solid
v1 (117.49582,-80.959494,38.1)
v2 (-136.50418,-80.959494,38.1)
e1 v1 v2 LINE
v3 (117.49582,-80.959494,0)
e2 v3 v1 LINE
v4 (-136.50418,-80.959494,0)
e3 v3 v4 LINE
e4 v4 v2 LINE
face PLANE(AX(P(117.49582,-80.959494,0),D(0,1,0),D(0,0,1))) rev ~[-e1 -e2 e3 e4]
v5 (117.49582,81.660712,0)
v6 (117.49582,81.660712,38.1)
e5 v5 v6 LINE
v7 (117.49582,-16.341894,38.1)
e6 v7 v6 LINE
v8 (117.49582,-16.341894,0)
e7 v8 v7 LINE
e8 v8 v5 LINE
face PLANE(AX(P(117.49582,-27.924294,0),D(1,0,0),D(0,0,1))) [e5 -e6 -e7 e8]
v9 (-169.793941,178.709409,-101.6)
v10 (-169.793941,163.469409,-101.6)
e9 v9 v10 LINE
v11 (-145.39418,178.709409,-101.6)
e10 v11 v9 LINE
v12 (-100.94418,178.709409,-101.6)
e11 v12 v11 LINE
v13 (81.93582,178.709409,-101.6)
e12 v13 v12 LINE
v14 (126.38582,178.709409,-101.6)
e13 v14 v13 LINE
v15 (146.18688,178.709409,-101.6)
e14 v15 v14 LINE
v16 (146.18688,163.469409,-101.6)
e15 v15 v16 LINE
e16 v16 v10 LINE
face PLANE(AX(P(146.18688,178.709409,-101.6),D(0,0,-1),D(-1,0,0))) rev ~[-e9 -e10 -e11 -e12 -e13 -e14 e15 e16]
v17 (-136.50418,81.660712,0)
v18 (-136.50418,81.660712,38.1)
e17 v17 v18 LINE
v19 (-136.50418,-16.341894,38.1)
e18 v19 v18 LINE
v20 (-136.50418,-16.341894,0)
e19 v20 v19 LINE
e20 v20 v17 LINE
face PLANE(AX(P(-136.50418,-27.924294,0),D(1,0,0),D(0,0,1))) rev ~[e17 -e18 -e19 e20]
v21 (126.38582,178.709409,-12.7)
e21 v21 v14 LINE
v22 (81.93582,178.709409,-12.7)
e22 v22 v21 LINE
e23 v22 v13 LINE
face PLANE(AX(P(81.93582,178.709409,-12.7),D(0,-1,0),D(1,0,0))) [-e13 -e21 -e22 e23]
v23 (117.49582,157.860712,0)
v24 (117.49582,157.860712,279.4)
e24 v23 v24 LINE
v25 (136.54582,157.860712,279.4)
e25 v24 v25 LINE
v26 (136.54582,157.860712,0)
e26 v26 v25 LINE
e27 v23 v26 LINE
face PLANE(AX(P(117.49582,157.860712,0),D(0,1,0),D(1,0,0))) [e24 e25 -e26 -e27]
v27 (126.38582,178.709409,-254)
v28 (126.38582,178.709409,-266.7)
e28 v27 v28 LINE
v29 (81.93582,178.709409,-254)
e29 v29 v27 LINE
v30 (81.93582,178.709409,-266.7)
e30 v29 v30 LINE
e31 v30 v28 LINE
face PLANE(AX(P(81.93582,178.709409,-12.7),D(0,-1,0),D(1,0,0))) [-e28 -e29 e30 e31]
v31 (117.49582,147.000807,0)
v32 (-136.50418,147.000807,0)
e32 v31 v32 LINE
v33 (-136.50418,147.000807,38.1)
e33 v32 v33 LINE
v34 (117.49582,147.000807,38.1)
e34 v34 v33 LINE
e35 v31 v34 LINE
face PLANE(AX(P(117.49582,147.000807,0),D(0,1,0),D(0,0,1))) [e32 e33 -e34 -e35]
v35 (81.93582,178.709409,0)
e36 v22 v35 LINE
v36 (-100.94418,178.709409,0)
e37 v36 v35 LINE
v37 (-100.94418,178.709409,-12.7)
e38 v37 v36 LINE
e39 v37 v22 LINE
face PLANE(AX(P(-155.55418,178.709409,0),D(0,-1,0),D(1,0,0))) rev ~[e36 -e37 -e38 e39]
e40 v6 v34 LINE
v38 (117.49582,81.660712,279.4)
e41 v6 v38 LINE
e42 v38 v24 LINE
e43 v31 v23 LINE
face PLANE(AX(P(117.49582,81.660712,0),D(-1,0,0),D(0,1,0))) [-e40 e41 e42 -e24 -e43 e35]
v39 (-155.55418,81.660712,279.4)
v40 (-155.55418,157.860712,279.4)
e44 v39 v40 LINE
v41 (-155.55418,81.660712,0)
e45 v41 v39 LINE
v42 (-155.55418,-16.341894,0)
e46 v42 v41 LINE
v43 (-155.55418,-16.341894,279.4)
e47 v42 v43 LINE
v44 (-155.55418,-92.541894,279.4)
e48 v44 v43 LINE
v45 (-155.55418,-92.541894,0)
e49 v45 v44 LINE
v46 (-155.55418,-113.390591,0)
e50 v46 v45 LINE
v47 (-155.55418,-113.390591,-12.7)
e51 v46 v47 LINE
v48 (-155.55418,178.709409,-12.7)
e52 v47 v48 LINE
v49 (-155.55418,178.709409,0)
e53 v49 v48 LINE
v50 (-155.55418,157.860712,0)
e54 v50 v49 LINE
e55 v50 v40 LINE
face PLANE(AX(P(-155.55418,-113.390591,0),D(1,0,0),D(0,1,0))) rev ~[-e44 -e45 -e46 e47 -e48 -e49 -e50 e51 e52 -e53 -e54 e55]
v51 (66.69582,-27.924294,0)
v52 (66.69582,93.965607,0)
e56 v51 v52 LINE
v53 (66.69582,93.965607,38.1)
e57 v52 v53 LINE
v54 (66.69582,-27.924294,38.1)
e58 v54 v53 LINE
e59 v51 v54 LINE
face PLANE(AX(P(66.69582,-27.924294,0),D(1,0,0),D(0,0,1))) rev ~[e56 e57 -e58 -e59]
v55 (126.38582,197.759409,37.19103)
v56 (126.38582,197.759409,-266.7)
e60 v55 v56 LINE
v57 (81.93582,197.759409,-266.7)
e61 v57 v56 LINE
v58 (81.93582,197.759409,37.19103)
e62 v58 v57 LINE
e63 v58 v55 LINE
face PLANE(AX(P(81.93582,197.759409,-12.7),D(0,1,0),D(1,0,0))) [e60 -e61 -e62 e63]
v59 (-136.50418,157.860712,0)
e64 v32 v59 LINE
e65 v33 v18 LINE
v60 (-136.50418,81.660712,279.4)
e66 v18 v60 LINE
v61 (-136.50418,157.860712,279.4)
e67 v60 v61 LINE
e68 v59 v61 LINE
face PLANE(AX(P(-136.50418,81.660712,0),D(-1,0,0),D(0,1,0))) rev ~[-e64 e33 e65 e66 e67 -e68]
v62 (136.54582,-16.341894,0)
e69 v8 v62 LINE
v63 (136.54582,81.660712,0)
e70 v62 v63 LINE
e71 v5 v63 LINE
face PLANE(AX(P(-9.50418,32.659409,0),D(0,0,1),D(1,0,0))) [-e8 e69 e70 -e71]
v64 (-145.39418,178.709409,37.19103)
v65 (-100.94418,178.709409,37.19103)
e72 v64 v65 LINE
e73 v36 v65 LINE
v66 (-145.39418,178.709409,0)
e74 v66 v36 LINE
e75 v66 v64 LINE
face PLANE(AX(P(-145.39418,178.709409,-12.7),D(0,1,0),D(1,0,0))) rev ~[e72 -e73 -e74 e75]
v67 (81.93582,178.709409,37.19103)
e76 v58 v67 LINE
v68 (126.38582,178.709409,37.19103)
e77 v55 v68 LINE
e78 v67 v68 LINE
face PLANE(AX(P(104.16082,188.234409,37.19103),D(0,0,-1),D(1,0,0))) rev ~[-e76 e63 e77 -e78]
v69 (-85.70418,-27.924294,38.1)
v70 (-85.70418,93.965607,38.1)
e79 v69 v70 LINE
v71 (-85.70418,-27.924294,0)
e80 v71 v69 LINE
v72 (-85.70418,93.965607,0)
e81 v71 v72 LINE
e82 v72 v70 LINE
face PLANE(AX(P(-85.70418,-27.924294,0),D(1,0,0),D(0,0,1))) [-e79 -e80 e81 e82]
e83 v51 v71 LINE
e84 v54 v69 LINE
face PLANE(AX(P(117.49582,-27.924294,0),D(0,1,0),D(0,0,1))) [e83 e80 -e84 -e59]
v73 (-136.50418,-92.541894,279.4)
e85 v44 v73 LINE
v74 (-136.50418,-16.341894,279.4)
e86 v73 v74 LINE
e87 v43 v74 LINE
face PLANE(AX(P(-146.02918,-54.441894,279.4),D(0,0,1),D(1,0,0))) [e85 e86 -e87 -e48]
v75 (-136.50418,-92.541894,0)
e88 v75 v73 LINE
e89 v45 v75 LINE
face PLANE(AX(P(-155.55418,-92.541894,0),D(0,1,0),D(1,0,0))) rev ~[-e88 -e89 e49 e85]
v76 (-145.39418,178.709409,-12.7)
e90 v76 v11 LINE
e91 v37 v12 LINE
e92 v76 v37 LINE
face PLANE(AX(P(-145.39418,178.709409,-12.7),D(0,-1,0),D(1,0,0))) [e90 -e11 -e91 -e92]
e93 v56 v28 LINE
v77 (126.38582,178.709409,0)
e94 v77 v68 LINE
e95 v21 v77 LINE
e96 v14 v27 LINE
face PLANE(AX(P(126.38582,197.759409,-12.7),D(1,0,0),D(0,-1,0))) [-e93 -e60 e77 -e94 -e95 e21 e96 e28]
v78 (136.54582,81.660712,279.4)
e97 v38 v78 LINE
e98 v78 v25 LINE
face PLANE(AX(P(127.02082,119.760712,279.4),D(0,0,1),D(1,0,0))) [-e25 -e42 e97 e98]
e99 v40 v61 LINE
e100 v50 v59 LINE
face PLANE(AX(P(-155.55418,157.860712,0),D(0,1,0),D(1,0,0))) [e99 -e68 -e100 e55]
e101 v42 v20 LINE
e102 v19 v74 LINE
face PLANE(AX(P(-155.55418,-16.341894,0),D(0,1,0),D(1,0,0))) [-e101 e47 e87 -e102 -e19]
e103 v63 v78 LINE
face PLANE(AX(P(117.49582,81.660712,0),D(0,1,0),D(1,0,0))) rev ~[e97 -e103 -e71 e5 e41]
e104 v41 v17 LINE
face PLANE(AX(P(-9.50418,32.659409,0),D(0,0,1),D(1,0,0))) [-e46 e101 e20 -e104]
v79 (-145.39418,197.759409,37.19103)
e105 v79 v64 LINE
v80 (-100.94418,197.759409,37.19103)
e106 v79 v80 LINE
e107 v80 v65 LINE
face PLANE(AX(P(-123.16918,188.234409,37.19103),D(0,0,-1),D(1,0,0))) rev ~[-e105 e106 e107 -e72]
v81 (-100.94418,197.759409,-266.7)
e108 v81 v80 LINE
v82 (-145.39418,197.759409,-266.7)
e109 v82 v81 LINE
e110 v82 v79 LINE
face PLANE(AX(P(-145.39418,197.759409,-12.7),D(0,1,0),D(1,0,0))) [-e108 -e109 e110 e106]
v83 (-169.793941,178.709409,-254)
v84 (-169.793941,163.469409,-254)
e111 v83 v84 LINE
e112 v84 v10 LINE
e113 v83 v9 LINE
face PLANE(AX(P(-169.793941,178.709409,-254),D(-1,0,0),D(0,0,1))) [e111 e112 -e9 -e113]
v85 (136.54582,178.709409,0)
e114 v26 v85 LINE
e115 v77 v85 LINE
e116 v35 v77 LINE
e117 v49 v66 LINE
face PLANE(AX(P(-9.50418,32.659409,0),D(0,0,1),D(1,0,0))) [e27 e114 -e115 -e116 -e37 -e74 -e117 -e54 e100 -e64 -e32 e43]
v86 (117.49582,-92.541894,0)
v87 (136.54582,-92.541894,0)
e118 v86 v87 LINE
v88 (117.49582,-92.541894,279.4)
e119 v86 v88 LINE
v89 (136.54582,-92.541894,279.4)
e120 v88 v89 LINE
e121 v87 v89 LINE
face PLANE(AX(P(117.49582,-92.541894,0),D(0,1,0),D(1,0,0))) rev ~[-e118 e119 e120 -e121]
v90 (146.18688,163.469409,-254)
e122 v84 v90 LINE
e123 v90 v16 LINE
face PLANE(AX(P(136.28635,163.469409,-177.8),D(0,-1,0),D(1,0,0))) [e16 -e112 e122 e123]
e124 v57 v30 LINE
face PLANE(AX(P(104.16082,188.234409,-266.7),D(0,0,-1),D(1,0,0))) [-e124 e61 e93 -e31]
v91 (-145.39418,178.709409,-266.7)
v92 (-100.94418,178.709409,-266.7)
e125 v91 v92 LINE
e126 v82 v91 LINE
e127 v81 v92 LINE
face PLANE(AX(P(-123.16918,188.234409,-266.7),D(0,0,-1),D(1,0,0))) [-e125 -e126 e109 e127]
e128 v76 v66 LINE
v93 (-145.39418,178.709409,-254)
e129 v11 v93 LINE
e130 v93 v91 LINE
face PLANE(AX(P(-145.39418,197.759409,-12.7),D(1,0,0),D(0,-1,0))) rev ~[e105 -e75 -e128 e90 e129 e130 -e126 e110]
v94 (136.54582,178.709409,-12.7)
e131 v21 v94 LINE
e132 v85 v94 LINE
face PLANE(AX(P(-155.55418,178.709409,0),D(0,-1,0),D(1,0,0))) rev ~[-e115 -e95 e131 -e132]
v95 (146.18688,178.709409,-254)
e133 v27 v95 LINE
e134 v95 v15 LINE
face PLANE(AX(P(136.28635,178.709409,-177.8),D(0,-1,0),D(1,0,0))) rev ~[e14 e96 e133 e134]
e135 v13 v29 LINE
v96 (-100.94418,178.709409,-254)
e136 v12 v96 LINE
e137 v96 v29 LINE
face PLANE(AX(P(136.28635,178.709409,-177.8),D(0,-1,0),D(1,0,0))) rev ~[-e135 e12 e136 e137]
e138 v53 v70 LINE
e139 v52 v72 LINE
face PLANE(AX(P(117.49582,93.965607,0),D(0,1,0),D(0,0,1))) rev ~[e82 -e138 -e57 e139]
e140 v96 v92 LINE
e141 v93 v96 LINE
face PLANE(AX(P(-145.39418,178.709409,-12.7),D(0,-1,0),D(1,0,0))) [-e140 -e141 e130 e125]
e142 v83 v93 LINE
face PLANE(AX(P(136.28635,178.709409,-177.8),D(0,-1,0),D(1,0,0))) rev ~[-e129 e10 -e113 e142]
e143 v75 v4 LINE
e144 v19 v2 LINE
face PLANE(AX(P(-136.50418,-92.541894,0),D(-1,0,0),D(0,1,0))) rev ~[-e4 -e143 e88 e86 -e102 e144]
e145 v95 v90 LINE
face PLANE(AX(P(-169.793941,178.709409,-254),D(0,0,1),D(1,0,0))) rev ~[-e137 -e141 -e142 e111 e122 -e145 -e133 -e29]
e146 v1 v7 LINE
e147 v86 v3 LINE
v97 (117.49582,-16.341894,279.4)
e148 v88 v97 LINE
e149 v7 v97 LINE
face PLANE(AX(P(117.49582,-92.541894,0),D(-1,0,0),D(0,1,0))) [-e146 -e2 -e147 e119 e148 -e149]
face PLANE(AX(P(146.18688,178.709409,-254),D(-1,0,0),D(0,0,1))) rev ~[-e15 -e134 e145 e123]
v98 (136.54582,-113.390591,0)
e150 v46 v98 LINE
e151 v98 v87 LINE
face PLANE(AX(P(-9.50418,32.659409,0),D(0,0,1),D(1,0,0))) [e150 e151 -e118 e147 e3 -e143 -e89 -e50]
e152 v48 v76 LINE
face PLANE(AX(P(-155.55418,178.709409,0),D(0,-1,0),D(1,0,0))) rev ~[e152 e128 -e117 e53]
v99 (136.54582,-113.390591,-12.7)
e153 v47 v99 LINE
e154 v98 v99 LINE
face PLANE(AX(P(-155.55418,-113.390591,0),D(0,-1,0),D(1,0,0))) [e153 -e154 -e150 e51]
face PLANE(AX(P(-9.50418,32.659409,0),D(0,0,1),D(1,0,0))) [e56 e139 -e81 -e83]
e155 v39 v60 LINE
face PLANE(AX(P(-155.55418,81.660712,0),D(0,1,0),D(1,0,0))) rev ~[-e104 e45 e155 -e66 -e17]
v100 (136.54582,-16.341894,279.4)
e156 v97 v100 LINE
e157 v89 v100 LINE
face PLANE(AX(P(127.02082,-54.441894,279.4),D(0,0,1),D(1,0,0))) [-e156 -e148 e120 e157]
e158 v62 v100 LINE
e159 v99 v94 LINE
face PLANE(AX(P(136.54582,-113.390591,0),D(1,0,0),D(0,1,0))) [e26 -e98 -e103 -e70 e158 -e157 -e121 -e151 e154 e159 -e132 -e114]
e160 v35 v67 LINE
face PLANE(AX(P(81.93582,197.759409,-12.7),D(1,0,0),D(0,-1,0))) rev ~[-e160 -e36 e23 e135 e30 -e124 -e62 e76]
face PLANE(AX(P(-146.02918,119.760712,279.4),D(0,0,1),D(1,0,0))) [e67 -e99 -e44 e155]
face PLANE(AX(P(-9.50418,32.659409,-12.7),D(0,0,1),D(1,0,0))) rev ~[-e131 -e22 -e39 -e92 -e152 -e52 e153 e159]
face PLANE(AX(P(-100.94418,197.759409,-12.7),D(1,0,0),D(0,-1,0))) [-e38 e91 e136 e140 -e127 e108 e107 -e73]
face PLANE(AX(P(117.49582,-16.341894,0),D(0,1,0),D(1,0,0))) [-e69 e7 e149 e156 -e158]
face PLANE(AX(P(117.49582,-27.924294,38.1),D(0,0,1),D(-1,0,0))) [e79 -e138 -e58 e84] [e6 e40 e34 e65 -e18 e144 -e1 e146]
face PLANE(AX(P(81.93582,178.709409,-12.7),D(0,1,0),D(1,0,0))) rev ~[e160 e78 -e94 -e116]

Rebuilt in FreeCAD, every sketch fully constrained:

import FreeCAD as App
import Part
import Sketcher
Q = App.Units.Quantity


def add_polygon(sketch, points):
    """Adds a closed chain of lines whose ends are joined by coincident constraints."""
    first, n = sketch.GeometryCount, len(points)
    for a, b in zip(points, points[1:] + points[:1]):
        sketch.addGeometry(Part.LineSegment(App.Vector(*a, 0), App.Vector(*b, 0)), False)
    for i in range(n):
        sketch.addConstraint(Sketcher.Constraint("Coincident", first + i, 2, first + (i + 1) % n, 1))

doc = App.newDocument("Part")
body = doc.addObject("PartDesign::Body", "Body")

sketch1 = doc.addObject("Sketcher::SketchObject", "Sketch")
body.addObject(sketch1)
sketch1.AttachmentSupport = (doc.XY_Plane, [""])
sketch1.MapMode = "FlatFace"
add_polygon(sketch1, [(-156, 179), (-156, -113), (137, -113), (137, 179)])
sketch1.addConstraint(Sketcher.Constraint("Vertical", 0))
sketch1.addConstraint(Sketcher.Constraint("Horizontal", 1))
sketch1.addConstraint(Sketcher.Constraint("Vertical", 2))
sketch1.addConstraint(Sketcher.Constraint("Horizontal", 3))
sketch1.addConstraint(Sketcher.Constraint("Equal", 3, 0))
sketch1.addConstraint(Sketcher.Constraint("DistanceX", 1, 1, 1, 2, Q("11.5 in")))
sketch1.addConstraint(Sketcher.Constraint("DistanceX", 0, 2, -1, 1, Q("155.55418 mm")))
sketch1.addConstraint(Sketcher.Constraint("DistanceY", 0, 2, -1, 1, Q("113.390591 mm")))
pad1 = doc.addObject("PartDesign::Pad", "Pad")
body.addObject(pad1)
pad1.Profile = sketch1
pad1.Length = Q("0.5 in")
pad1.Reversed = True

sketch2 = doc.addObject("Sketcher::SketchObject", "Sketch001")
body.addObject(sketch2)
sketch2.AttachmentSupport = (doc.XY_Plane, [""])
sketch2.MapMode = "FlatFace"
add_polygon(sketch2, [(117, -16), (117, -93), (137, -93), (137, -16)])
add_polygon(sketch2, [(117, 158), (117, 82), (137, 82), (137, 158)])
add_polygon(sketch2, [(-156, -16), (-156, -93), (-137, -93), (-137, -16)])
add_polygon(sketch2, [(-156, 158), (-156, 82), (-137, 82), (-137, 158)])
sketch2.addConstraint(Sketcher.Constraint("Vertical", 0))
sketch2.addConstraint(Sketcher.Constraint("Horizontal", 1))
sketch2.addConstraint(Sketcher.Constraint("Vertical", 2))
sketch2.addConstraint(Sketcher.Constraint("Horizontal", 3))
sketch2.addConstraint(Sketcher.Constraint("Vertical", 4))
sketch2.addConstraint(Sketcher.Constraint("Horizontal", 5))
sketch2.addConstraint(Sketcher.Constraint("Vertical", 6))
sketch2.addConstraint(Sketcher.Constraint("Horizontal", 7))
sketch2.addConstraint(Sketcher.Constraint("Vertical", 8))
sketch2.addConstraint(Sketcher.Constraint("Horizontal", 9))
sketch2.addConstraint(Sketcher.Constraint("Vertical", 10))
sketch2.addConstraint(Sketcher.Constraint("Horizontal", 11))
sketch2.addConstraint(Sketcher.Constraint("Vertical", 12))
sketch2.addConstraint(Sketcher.Constraint("Horizontal", 13))
sketch2.addConstraint(Sketcher.Constraint("Vertical", 14))
sketch2.addConstraint(Sketcher.Constraint("Horizontal", 15))
sketch2.addConstraint(Sketcher.Constraint("Horizontal", 1, 2, 8, 2))
sketch2.addConstraint(Sketcher.Constraint("Horizontal", 3, 2, 10, 2))
sketch2.addConstraint(Sketcher.Constraint("Horizontal", 5, 2, 12, 2))
sketch2.addConstraint(Sketcher.Constraint("Horizontal", 7, 2, 14, 2))
sketch2.addConstraint(Sketcher.Constraint("Vertical", 3, 2, 4, 2))
sketch2.addConstraint(Sketcher.Constraint("Vertical", 2, 2, 5, 2))
sketch2.addConstraint(Sketcher.Constraint("Vertical", 11, 2, 12, 2))
sketch2.addConstraint(Sketcher.Constraint("Vertical", 10, 2, 13, 2))
sketch2.addConstraint(Sketcher.Constraint("Equal", 7, 9))
sketch2.addConstraint(Sketcher.Constraint("Equal", 2, 4))
sketch2.addConstraint(Sketcher.Constraint("DistanceY", 0, 2, 0, 1, Q("3 in")))
sketch2.addConstraint(Sketcher.Constraint("DistanceX", 9, 2, 0, 2, Q("10 in")))
sketch2.addConstraint(Sketcher.Constraint("DistanceX", 1, 1, 1, 2, Q("0.75 in")))
sketch2.addConstraint(Sketcher.Constraint("DistanceX", -1, 1, 0, 2, Q("117.49582 mm")))
sketch2.addConstraint(Sketcher.Constraint("DistanceY", 0, 2, -1, 1, Q("92.541894 mm")))
sketch2.addConstraint(Sketcher.Constraint("DistanceY", -1, 1, 4, 2, Q("81.660712 mm")))
pad2 = doc.addObject("PartDesign::Pad", "Pad001")
body.addObject(pad2)
pad2.Profile = sketch2
pad2.Length = Q("11 in")

sketch3 = doc.addObject("Sketcher::SketchObject", "Sketch002")
body.addObject(sketch3)
sketch3.AttachmentSupport = (doc.YZ_Plane, [""])
sketch3.MapMode = "FlatFace"
sketch3.AttachmentOffset = App.Placement(App.Vector(0, 0, 117.49582), App.Rotation())
add_polygon(sketch3, [(-28, 38), (-28, 0), (-81, 0), (-81, 38)])
add_polygon(sketch3, [(147, 38), (147, 0), (94, 0), (94, 38)])
sketch3.addConstraint(Sketcher.Constraint("Vertical", 0))
sketch3.addConstraint(Sketcher.Constraint("Horizontal", 1))
sketch3.addConstraint(Sketcher.Constraint("Vertical", 2))
sketch3.addConstraint(Sketcher.Constraint("Horizontal", 3))
sketch3.addConstraint(Sketcher.Constraint("Vertical", 4))
sketch3.addConstraint(Sketcher.Constraint("Horizontal", 5))
sketch3.addConstraint(Sketcher.Constraint("Vertical", 6))
sketch3.addConstraint(Sketcher.Constraint("Horizontal", 7))
sketch3.addConstraint(Sketcher.Constraint("PointOnObject", 0, 2, -1))
sketch3.addConstraint(Sketcher.Constraint("PointOnObject", 4, 2, -1))
sketch3.addConstraint(Sketcher.Constraint("Horizontal", 3, 2, 6, 2))
sketch3.addConstraint(Sketcher.Constraint("Equal", 3, 5))
sketch3.addConstraint(Sketcher.Constraint("DistanceY", 0, 2, 0, 1, Q("1.5 in")))
sketch3.addConstraint(Sketcher.Constraint("DistanceX", 1, 2, 1, 1, Q("2.088 in")))
sketch3.addConstraint(Sketcher.Constraint("DistanceX", 0, 2, 4, 2, Q("174.9251 mm")))
sketch3.addConstraint(Sketcher.Constraint("DistanceX", 0, 2, -1, 1, Q("27.924294 mm")))
pad3 = doc.addObject("PartDesign::Pad", "Pad002")
body.addObject(pad3)
pad3.Profile = sketch3
pad3.Length = Q("10 in")
pad3.Reversed = True

sketch4 = doc.addObject("Sketcher::SketchObject", "Sketch003")
body.addObject(sketch4)
sketch4.AttachmentSupport = (doc.XZ_Plane, [""])
sketch4.MapMode = "FlatFace"
sketch4.AttachmentOffset = App.Placement(App.Vector(0, 0, 27.924294), App.Rotation())
add_polygon(sketch4, [(117, 38), (117, 0), (67, 0), (67, 38)])
add_polygon(sketch4, [(-86, 38), (-86, 0), (-137, 0), (-137, 38)])
sketch4.addConstraint(Sketcher.Constraint("Vertical", 0))
sketch4.addConstraint(Sketcher.Constraint("Horizontal", 1))
sketch4.addConstraint(Sketcher.Constraint("Vertical", 2))
sketch4.addConstraint(Sketcher.Constraint("Horizontal", 3))
sketch4.addConstraint(Sketcher.Constraint("Vertical", 4))
sketch4.addConstraint(Sketcher.Constraint("Horizontal", 5))
sketch4.addConstraint(Sketcher.Constraint("Vertical", 6))
sketch4.addConstraint(Sketcher.Constraint("Horizontal", 7))
sketch4.addConstraint(Sketcher.Constraint("PointOnObject", 0, 2, -1))
sketch4.addConstraint(Sketcher.Constraint("PointOnObject", 4, 2, -1))
sketch4.addConstraint(Sketcher.Constraint("Horizontal", 3, 2, 6, 2))
sketch4.addConstraint(Sketcher.Constraint("Equal", 3, 5))
sketch4.addConstraint(Sketcher.Constraint("DistanceX", 1, 2, 1, 1, Q("2 in")))
sketch4.addConstraint(Sketcher.Constraint("DistanceY", 0, 2, 0, 1, Q("1.5 in")))
sketch4.addConstraint(Sketcher.Constraint("DistanceX", 4, 2, 1, 2, Q("6 in")))
sketch4.addConstraint(Sketcher.Constraint("DistanceX", -1, 1, 0, 2, Q("117.49582 mm")))
pad4 = doc.addObject("PartDesign::Pad", "Pad003")
body.addObject(pad4)
pad4.Profile = sketch4
pad4.Type = "UpToLast"
pad4.Reversed = True

sketch5 = doc.addObject("Sketcher::SketchObject", "Sketch004")
body.addObject(sketch5)
sketch5.AttachmentSupport = (doc.XY_Plane, [""])
sketch5.MapMode = "FlatFace"
sketch5.AttachmentOffset = App.Placement(App.Vector(0, 0, -0.5 * 25.4), App.Rotation())
add_polygon(sketch5, [(82, 179), (82, 198), (126, 198), (126, 179)])
add_polygon(sketch5, [(-145, 179), (-145, 198), (-101, 198), (-101, 179)])
sketch5.addConstraint(Sketcher.Constraint("Vertical", 0))
sketch5.addConstraint(Sketcher.Constraint("Horizontal", 1))
sketch5.addConstraint(Sketcher.Constraint("Vertical", 2))
sketch5.addConstraint(Sketcher.Constraint("Horizontal", 3))
sketch5.addConstraint(Sketcher.Constraint("Vertical", 4))
sketch5.addConstraint(Sketcher.Constraint("Horizontal", 5))
sketch5.addConstraint(Sketcher.Constraint("Vertical", 6))
sketch5.addConstraint(Sketcher.Constraint("Horizontal", 7))
sketch5.addConstraint(Sketcher.Constraint("Horizontal", 1, 2, 4, 2))
sketch5.addConstraint(Sketcher.Constraint("Horizontal", 3, 2, 6, 2))
sketch5.addConstraint(Sketcher.Constraint("Equal", 3, 5))
sketch5.addConstraint(Sketcher.Constraint("DistanceX", 1, 1, 1, 2, Q("1.75 in")))
sketch5.addConstraint(Sketcher.Constraint("DistanceY", 0, 1, 0, 2, Q("0.75 in")))
sketch5.addConstraint(Sketcher.Constraint("DistanceX", 4, 2, 1, 2, Q("10.7 in")))
sketch5.addConstraint(Sketcher.Constraint("DistanceX", -1, 1, 0, 2, Q("81.93582 mm")))
sketch5.addConstraint(Sketcher.Constraint("DistanceY", -1, 1, 0, 2, Q("197.759409 mm")))
pad5 = doc.addObject("PartDesign::Pad", "Pad004")
body.addObject(pad5)
pad5.Profile = sketch5
pad5.Type = "TwoLengths"
pad5.Length = Q("10 in")
pad5.Length2 = 49.89103
pad5.Reversed = True

sketch6 = doc.addObject("Sketcher::SketchObject", "Sketch005")
body.addObject(sketch6)
sketch6.AttachmentSupport = (doc.XZ_Plane, [""])
sketch6.MapMode = "FlatFace"
sketch6.AttachmentOffset = App.Placement(App.Vector(0, 0, -178.709409), App.Rotation())
add_polygon(sketch6, [(146, -254), (146, -102), (-170, -102), (-170, -254)])
sketch6.addConstraint(Sketcher.Constraint("Vertical", 0))
sketch6.addConstraint(Sketcher.Constraint("Horizontal", 1))
sketch6.addConstraint(Sketcher.Constraint("Vertical", 2))
sketch6.addConstraint(Sketcher.Constraint("Horizontal", 3))
sketch6.addConstraint(Sketcher.Constraint("DistanceY", 0, 1, 0, 2, Q("6 in")))
sketch6.addConstraint(Sketcher.Constraint("DistanceY", 0, 2, -1, 1, Q("4 in")))
sketch6.addConstraint(Sketcher.Constraint("DistanceX", 1, 2, 1, 1, Q("315.980821 mm")))
sketch6.addConstraint(Sketcher.Constraint("DistanceX", -1, 1, 0, 2, Q("146.18688 mm")))
pad6 = doc.addObject("PartDesign::Pad", "Pad005")
body.addObject(pad6)
pad6.Profile = sketch6
pad6.Length = Q("0.6 in")

doc.recompute()
